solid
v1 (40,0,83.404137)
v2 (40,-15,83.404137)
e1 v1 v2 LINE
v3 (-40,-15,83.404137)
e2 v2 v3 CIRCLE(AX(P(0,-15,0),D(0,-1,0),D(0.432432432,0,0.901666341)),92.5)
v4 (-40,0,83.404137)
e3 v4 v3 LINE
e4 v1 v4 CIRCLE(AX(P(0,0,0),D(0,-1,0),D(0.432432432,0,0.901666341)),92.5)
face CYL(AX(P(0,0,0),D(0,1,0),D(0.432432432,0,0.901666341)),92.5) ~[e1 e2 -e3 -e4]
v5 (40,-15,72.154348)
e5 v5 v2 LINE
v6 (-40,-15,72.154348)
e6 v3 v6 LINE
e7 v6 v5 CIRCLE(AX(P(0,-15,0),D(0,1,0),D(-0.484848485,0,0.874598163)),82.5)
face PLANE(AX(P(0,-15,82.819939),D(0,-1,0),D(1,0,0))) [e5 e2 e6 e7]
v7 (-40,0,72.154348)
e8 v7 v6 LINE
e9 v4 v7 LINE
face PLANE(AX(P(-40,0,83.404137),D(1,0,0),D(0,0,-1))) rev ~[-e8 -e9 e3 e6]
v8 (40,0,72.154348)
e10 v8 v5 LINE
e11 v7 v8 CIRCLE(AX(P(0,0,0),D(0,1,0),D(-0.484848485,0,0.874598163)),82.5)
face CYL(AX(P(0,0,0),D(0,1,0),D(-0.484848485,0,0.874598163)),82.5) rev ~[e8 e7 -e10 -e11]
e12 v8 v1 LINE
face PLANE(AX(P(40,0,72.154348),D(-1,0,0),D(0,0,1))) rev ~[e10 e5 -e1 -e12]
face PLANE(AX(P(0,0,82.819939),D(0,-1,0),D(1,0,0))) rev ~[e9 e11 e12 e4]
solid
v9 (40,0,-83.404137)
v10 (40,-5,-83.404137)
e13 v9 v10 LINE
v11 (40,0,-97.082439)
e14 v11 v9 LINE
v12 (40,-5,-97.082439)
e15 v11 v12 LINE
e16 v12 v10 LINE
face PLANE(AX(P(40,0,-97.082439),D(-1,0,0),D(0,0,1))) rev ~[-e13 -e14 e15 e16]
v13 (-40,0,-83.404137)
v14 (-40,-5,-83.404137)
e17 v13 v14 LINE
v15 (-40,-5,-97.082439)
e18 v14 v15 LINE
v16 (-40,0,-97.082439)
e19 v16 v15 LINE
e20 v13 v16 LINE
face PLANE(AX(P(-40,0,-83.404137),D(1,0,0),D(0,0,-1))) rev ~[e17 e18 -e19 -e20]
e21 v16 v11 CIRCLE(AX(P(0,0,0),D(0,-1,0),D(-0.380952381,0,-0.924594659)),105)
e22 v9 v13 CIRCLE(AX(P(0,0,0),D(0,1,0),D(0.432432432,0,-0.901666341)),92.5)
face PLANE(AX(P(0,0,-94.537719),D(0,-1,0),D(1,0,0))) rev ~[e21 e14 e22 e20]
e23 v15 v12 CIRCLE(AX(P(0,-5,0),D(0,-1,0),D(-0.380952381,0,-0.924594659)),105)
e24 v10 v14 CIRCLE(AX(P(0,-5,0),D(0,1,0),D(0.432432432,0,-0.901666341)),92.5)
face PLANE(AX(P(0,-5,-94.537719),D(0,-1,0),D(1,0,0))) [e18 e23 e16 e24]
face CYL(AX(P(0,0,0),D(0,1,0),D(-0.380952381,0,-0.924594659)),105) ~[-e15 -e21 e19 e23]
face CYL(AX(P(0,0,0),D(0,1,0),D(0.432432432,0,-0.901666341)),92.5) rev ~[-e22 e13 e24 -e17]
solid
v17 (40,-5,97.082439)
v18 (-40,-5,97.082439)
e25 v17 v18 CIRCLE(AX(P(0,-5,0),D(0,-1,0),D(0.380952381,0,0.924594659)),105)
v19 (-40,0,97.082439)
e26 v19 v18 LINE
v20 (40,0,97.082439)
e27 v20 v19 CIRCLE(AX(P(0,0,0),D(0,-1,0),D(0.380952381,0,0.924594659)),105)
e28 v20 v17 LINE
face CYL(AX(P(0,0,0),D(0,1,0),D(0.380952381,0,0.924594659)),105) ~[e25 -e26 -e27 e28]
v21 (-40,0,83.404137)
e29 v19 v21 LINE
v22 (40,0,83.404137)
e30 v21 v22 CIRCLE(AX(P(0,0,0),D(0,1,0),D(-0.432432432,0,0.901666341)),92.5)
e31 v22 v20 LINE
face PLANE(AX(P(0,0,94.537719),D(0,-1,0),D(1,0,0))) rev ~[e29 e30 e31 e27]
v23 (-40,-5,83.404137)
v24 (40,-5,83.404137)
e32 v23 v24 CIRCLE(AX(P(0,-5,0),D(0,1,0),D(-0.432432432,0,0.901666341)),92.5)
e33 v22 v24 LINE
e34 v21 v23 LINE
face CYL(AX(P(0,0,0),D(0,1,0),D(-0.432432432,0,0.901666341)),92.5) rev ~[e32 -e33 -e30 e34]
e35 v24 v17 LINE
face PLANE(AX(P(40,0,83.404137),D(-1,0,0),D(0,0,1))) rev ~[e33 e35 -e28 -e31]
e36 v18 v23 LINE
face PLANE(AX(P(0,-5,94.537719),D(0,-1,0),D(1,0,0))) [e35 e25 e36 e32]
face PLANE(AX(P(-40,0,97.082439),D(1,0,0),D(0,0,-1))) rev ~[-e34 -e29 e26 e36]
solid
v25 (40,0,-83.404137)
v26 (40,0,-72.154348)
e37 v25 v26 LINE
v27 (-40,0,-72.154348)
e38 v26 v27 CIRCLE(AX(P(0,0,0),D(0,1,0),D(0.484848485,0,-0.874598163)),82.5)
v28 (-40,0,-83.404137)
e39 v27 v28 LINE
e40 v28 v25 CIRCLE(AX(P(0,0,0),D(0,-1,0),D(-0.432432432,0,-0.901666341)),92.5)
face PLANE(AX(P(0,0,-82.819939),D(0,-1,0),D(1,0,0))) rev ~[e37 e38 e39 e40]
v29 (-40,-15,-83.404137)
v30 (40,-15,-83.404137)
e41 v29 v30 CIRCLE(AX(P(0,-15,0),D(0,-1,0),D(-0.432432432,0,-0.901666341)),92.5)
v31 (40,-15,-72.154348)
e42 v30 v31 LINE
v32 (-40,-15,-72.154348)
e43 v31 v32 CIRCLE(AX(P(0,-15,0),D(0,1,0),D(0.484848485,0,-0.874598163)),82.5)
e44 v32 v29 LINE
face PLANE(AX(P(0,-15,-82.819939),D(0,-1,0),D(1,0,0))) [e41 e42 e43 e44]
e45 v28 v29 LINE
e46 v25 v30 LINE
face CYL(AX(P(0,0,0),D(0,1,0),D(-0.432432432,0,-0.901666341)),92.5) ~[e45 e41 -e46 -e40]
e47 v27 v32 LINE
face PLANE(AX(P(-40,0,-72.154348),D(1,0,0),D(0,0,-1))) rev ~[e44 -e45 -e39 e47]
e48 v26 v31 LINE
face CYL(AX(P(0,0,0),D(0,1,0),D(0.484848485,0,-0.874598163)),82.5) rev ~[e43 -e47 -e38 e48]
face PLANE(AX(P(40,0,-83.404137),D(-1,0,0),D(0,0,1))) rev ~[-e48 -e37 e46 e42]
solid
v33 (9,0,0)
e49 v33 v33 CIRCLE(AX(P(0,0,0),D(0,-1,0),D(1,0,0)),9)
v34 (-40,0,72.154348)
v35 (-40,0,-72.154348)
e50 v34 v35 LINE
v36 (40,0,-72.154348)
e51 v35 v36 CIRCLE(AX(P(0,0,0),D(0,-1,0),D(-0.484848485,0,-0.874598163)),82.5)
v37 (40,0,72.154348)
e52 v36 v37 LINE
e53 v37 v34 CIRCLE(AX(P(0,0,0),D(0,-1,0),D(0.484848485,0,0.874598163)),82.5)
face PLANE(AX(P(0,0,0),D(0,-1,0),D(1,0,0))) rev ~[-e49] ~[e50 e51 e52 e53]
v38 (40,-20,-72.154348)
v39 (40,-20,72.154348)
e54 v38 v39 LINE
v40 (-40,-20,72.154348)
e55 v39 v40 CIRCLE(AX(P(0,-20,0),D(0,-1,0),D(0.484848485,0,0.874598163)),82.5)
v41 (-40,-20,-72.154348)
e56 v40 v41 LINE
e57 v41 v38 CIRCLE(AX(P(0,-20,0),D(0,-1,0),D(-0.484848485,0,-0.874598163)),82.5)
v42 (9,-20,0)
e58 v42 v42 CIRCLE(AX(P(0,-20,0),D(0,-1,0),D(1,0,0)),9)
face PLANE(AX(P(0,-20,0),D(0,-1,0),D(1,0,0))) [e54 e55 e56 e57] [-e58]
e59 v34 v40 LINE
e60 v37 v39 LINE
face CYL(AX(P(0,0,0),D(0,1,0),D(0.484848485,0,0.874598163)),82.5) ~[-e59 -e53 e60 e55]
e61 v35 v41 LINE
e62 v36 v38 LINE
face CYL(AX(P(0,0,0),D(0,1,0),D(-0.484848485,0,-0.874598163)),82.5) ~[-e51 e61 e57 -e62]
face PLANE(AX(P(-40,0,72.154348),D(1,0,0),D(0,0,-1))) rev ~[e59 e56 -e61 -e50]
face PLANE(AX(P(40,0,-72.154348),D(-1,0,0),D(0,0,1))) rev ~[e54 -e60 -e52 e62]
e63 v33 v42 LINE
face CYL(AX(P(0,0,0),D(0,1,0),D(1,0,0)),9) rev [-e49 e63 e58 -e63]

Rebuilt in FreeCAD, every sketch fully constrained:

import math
import FreeCAD as App
import Part
import Sketcher
from FreeCAD import Vector

doc = App.newDocument("Part")
body = doc.addObject("PartDesign::Body", "Body")

# Sketch on XZ plane
sketch1 = body.newObject("Sketcher::SketchObject", "Sketch")
sketch1.AttachmentSupport = (doc.getObject("XZ_Plane"), [""])
sketch1.MapMode = "FlatFace"
sketch1.addGeometry(Part.LineSegment(Vector(40, 83.404137, 0), Vector(40, 97.082439, 0)), False)
sketch1.addGeometry(Part.ArcOfCircle(Part.Circle(Vector(0, 0, 0), Vector(0, 0, 1), 105), math.radians(67.607312), math.radians(112.392688)), False)
sketch1.addGeometry(Part.LineSegment(Vector(-40, 97.082439, 0), Vector(-40, 83.404137, 0)), False)
sketch1.addGeometry(Part.ArcOfCircle(Part.Circle(Vector(0, 0, 0), Vector(0, 0, 1), 92.5), math.radians(64.377972), math.radians(115.622028)), False)
sketch1.addConstraint(Sketcher.Constraint("Coincident", 0, 2, 1, 1))
sketch1.addConstraint(Sketcher.Constraint("Coincident", 1, 2, 2, 1))
sketch1.addConstraint(Sketcher.Constraint("Coincident", 2, 2, 3, 2))
sketch1.addConstraint(Sketcher.Constraint("Coincident", 3, 1, 0, 1))
sketch1.addConstraint(Sketcher.Constraint("Vertical", 0))
sketch1.addConstraint(Sketcher.Constraint("Vertical", 2))
sketch1.addConstraint(Sketcher.Constraint("Coincident", 1, 3, -1, 1))
sketch1.addConstraint(Sketcher.Constraint("Coincident", 3, 3, -1, 1))
sketch1.addConstraint(Sketcher.Constraint("Horizontal", 0, 2, 1, 2))
sketch1.addConstraint(Sketcher.Constraint("Radius", 1, 105.0))
sketch1.addConstraint(Sketcher.Constraint("Radius", 3, 92.5))
sketch1.addConstraint(Sketcher.Constraint("DistanceX", -1, 1, 0, 2, 40.0))
pad1 = body.newObject("PartDesign::Pad", "Pad")
pad1.Profile = sketch1
pad1.Length = 5
body2 = doc.addObject("PartDesign::Body", "Body001")

# Sketch on XZ plane
sketch2 = body2.newObject("Sketcher::SketchObject", "Sketch001")
sketch2.AttachmentSupport = (doc.getObject("XZ_Plane001"), [""])
sketch2.MapMode = "FlatFace"
sketch2.addGeometry(Part.ArcOfCircle(Part.Circle(Vector(0, 0, 0), Vector(0, 0, 1), 105), math.radians(-112.392688), math.radians(-67.607312)), False)
sketch2.addGeometry(Part.LineSegment(Vector(40, -97.082439, 0), Vector(40, -83.404137, 0)), False)
sketch2.addGeometry(Part.ArcOfCircle(Part.Circle(Vector(0, 0, 0), Vector(0, 0, 1), 92.5), math.radians(-115.622028), math.radians(-64.377972)), False)
sketch2.addGeometry(Part.LineSegment(Vector(-40, -83.404137, 0), Vector(-40, -97.082439, 0)), False)
sketch2.addConstraint(Sketcher.Constraint("Coincident", 0, 2, 1, 1))
sketch2.addConstraint(Sketcher.Constraint("Coincident", 1, 2, 2, 2))
sketch2.addConstraint(Sketcher.Constraint("Coincident", 2, 1, 3, 1))
sketch2.addConstraint(Sketcher.Constraint("Coincident", 3, 2, 0, 1))
sketch2.addConstraint(Sketcher.Constraint("Vertical", 1))
sketch2.addConstraint(Sketcher.Constraint("Vertical", 3))
sketch2.addConstraint(Sketcher.Constraint("Coincident", 0, 3, -1, 1))
sketch2.addConstraint(Sketcher.Constraint("Coincident", 2, 3, -1, 1))
sketch2.addConstraint(Sketcher.Constraint("Horizontal", 1, 2, 2, 1))
sketch2.addConstraint(Sketcher.Constraint("Radius", 0, 105.0))
sketch2.addConstraint(Sketcher.Constraint("Radius", 2, 92.5))
sketch2.addConstraint(Sketcher.Constraint("DistanceX", -1, 1, 0, 2, 40.0))
pad2 = body2.newObject("PartDesign::Pad", "Pad001")
pad2.Profile = sketch2
pad2.Length = 5
body3 = doc.addObject("PartDesign::Body", "Body002")

# Sketch on XZ plane
sketch3 = body3.newObject("Sketcher::SketchObject", "Sketch002")
sketch3.AttachmentSupport = (doc.getObject("XZ_Plane002"), [""])
sketch3.MapMode = "FlatFace"
sketch3.addGeometry(Part.LineSegment(Vector(40, 72.154348, 0), Vector(40, 83.404137, 0)), False)
sketch3.addGeometry(Part.ArcOfCircle(Part.Circle(Vector(0, 0, 0), Vector(0, 0, 1), 92.5), math.radians(64.377972), math.radians(115.622028)), False)
sketch3.addGeometry(Part.LineSegment(Vector(-40, 83.404137, 0), Vector(-40, 72.154348, 0)), False)
sketch3.addGeometry(Part.ArcOfCircle(Part.Circle(Vector(0, 0, 0), Vector(0, 0, 1), 82.5), math.radians(60.997454), math.radians(119.002546)), False)
sketch3.addConstraint(Sketcher.Constraint("Coincident", 0, 2, 1, 1))
sketch3.addConstraint(Sketcher.Constraint("Coincident", 1, 2, 2, 1))
sketch3.addConstraint(Sketcher.Constraint("Coincident", 2, 2, 3, 2))
sketch3.addConstraint(Sketcher.Constraint("Coincident", 3, 1, 0, 1))
sketch3.addConstraint(Sketcher.Constraint("Vertical", 0))
sketch3.addConstraint(Sketcher.Constraint("Vertical", 2))
sketch3.addConstraint(Sketcher.Constraint("Coincident", 1, 3, -1, 1))
sketch3.addConstraint(Sketcher.Constraint("Coincident", 3, 3, -1, 1))
sketch3.addConstraint(Sketcher.Constraint("Horizontal", 0, 2, 1, 2))
sketch3.addConstraint(Sketcher.Constraint("Radius", 1, 92.5))
sketch3.addConstraint(Sketcher.Constraint("Radius", 3, 82.5))
sketch3.addConstraint(Sketcher.Constraint("DistanceX", -1, 1, 0, 2, 40.0))
pad3 = body3.newObject("PartDesign::Pad", "Pad002")
pad3.Profile = sketch3
pad3.Length = 15
body4 = doc.addObject("PartDesign::Body", "Body003")

# Sketch on XZ plane
sketch4 = body4.newObject("Sketcher::SketchObject", "Sketch003")
sketch4.AttachmentSupport = (doc.getObject("XZ_Plane003"), [""])
sketch4.MapMode = "FlatFace"
sketch4.addGeometry(Part.ArcOfCircle(Part.Circle(Vector(0, 0, 0), Vector(0, 0, 1), 92.5), math.radians(-115.622028), math.radians(-64.377972)), False)
sketch4.addGeometry(Part.LineSegment(Vector(40, -83.404137, 0), Vector(40, -72.154348, 0)), False)
sketch4.addGeometry(Part.ArcOfCircle(Part.Circle(Vector(0, 0, 0), Vector(0, 0, 1), 82.5), math.radians(-119.002546), math.radians(-60.997454)), False)
sketch4.addGeometry(Part.LineSegment(Vector(-40, -72.154348, 0), Vector(-40, -83.404137, 0)), False)
sketch4.addConstraint(Sketcher.Constraint("Coincident", 0, 2, 1, 1))
sketch4.addConstraint(Sketcher.Constraint("Coincident", 1, 2, 2, 2))
sketch4.addConstraint(Sketcher.Constraint("Coincident", 2, 1, 3, 1))
sketch4.addConstraint(Sketcher.Constraint("Coincident", 3, 2, 0, 1))
sketch4.addConstraint(Sketcher.Constraint("Vertical", 1))
sketch4.addConstraint(Sketcher.Constraint("Vertical", 3))
sketch4.addConstraint(Sketcher.Constraint("Coincident", 0, 3, -1, 1))
sketch4.addConstraint(Sketcher.Constraint("Coincident", 2, 3, -1, 1))
sketch4.addConstraint(Sketcher.Constraint("Horizontal", 1, 2, 2, 1))
sketch4.addConstraint(Sketcher.Constraint("Radius", 0, 92.5))
sketch4.addConstraint(Sketcher.Constraint("Radius", 2, 82.5))
sketch4.addConstraint(Sketcher.Constraint("DistanceX", -1, 1, 0, 2, 40.0))
pad4 = body4.newObject("PartDesign::Pad", "Pad003")
pad4.Profile = sketch4
pad4.Length = 15
body5 = doc.addObject("PartDesign::Body", "Body004")

# Sketch on XZ plane
sketch5 = body5.newObject("Sketcher::SketchObject", "Sketch004")
sketch5.AttachmentSupport = (doc.getObject("XZ_Plane004"), [""])
sketch5.MapMode = "FlatFace"
sketch5.addGeometry(Part.LineSegment(Vector(40, -72.154348, 0), Vector(40, 72.154348, 0)), False)
sketch5.addGeometry(Part.ArcOfCircle(Part.Circle(Vector(0, 0, 0), Vector(0, 0, 1), 82.5), math.radians(60.997454), math.radians(119.002546)), False)
sketch5.addGeometry(Part.LineSegment(Vector(-40, 72.154348, 0), Vector(-40, -72.154348, 0)), False)
sketch5.addGeometry(Part.ArcOfCircle(Part.Circle(Vector(0, 0, 0), Vector(0, 0, 1), 82.5), math.radians(-119.002546), math.radians(-60.997454)), False)
sketch5.addGeometry(Part.Circle(Vector(0, 0, 0), Vector(0, 0, 1), 9), False)
sketch5.addConstraint(Sketcher.Constraint("Coincident", 0, 2, 1, 1))
sketch5.addConstraint(Sketcher.Constraint("Coincident", 1, 2, 2, 1))
sketch5.addConstraint(Sketcher.Constraint("Coincident", 2, 2, 3, 1))
sketch5.addConstraint(Sketcher.Constraint("Coincident", 3, 2, 0, 1))
sketch5.addConstraint(Sketcher.Constraint("Vertical", 0))
sketch5.addConstraint(Sketcher.Constraint("Vertical", 2))
sketch5.addConstraint(Sketcher.Constraint("Coincident", 1, 3, -1, 1))
sketch5.addConstraint(Sketcher.Constraint("Coincident", 3, 3, -1, 1))
sketch5.addConstraint(Sketcher.Constraint("Coincident", 4, 3, -1, 1))
sketch5.addConstraint(Sketcher.Constraint("Equal", 1, 3))
sketch5.addConstraint(Sketcher.Constraint("Horizontal", 0, 2, 1, 2))
sketch5.addConstraint(Sketcher.Constraint("Diameter", 4, 18.0))
sketch5.addConstraint(Sketcher.Constraint("Radius", 1, 82.5))
sketch5.addConstraint(Sketcher.Constraint("DistanceX", -1, 1, 0, 2, 40.0))
pad5 = body5.newObject("PartDesign::Pad", "Pad004")
pad5.Profile = sketch5
pad5.Length = 20

doc.recompute()
